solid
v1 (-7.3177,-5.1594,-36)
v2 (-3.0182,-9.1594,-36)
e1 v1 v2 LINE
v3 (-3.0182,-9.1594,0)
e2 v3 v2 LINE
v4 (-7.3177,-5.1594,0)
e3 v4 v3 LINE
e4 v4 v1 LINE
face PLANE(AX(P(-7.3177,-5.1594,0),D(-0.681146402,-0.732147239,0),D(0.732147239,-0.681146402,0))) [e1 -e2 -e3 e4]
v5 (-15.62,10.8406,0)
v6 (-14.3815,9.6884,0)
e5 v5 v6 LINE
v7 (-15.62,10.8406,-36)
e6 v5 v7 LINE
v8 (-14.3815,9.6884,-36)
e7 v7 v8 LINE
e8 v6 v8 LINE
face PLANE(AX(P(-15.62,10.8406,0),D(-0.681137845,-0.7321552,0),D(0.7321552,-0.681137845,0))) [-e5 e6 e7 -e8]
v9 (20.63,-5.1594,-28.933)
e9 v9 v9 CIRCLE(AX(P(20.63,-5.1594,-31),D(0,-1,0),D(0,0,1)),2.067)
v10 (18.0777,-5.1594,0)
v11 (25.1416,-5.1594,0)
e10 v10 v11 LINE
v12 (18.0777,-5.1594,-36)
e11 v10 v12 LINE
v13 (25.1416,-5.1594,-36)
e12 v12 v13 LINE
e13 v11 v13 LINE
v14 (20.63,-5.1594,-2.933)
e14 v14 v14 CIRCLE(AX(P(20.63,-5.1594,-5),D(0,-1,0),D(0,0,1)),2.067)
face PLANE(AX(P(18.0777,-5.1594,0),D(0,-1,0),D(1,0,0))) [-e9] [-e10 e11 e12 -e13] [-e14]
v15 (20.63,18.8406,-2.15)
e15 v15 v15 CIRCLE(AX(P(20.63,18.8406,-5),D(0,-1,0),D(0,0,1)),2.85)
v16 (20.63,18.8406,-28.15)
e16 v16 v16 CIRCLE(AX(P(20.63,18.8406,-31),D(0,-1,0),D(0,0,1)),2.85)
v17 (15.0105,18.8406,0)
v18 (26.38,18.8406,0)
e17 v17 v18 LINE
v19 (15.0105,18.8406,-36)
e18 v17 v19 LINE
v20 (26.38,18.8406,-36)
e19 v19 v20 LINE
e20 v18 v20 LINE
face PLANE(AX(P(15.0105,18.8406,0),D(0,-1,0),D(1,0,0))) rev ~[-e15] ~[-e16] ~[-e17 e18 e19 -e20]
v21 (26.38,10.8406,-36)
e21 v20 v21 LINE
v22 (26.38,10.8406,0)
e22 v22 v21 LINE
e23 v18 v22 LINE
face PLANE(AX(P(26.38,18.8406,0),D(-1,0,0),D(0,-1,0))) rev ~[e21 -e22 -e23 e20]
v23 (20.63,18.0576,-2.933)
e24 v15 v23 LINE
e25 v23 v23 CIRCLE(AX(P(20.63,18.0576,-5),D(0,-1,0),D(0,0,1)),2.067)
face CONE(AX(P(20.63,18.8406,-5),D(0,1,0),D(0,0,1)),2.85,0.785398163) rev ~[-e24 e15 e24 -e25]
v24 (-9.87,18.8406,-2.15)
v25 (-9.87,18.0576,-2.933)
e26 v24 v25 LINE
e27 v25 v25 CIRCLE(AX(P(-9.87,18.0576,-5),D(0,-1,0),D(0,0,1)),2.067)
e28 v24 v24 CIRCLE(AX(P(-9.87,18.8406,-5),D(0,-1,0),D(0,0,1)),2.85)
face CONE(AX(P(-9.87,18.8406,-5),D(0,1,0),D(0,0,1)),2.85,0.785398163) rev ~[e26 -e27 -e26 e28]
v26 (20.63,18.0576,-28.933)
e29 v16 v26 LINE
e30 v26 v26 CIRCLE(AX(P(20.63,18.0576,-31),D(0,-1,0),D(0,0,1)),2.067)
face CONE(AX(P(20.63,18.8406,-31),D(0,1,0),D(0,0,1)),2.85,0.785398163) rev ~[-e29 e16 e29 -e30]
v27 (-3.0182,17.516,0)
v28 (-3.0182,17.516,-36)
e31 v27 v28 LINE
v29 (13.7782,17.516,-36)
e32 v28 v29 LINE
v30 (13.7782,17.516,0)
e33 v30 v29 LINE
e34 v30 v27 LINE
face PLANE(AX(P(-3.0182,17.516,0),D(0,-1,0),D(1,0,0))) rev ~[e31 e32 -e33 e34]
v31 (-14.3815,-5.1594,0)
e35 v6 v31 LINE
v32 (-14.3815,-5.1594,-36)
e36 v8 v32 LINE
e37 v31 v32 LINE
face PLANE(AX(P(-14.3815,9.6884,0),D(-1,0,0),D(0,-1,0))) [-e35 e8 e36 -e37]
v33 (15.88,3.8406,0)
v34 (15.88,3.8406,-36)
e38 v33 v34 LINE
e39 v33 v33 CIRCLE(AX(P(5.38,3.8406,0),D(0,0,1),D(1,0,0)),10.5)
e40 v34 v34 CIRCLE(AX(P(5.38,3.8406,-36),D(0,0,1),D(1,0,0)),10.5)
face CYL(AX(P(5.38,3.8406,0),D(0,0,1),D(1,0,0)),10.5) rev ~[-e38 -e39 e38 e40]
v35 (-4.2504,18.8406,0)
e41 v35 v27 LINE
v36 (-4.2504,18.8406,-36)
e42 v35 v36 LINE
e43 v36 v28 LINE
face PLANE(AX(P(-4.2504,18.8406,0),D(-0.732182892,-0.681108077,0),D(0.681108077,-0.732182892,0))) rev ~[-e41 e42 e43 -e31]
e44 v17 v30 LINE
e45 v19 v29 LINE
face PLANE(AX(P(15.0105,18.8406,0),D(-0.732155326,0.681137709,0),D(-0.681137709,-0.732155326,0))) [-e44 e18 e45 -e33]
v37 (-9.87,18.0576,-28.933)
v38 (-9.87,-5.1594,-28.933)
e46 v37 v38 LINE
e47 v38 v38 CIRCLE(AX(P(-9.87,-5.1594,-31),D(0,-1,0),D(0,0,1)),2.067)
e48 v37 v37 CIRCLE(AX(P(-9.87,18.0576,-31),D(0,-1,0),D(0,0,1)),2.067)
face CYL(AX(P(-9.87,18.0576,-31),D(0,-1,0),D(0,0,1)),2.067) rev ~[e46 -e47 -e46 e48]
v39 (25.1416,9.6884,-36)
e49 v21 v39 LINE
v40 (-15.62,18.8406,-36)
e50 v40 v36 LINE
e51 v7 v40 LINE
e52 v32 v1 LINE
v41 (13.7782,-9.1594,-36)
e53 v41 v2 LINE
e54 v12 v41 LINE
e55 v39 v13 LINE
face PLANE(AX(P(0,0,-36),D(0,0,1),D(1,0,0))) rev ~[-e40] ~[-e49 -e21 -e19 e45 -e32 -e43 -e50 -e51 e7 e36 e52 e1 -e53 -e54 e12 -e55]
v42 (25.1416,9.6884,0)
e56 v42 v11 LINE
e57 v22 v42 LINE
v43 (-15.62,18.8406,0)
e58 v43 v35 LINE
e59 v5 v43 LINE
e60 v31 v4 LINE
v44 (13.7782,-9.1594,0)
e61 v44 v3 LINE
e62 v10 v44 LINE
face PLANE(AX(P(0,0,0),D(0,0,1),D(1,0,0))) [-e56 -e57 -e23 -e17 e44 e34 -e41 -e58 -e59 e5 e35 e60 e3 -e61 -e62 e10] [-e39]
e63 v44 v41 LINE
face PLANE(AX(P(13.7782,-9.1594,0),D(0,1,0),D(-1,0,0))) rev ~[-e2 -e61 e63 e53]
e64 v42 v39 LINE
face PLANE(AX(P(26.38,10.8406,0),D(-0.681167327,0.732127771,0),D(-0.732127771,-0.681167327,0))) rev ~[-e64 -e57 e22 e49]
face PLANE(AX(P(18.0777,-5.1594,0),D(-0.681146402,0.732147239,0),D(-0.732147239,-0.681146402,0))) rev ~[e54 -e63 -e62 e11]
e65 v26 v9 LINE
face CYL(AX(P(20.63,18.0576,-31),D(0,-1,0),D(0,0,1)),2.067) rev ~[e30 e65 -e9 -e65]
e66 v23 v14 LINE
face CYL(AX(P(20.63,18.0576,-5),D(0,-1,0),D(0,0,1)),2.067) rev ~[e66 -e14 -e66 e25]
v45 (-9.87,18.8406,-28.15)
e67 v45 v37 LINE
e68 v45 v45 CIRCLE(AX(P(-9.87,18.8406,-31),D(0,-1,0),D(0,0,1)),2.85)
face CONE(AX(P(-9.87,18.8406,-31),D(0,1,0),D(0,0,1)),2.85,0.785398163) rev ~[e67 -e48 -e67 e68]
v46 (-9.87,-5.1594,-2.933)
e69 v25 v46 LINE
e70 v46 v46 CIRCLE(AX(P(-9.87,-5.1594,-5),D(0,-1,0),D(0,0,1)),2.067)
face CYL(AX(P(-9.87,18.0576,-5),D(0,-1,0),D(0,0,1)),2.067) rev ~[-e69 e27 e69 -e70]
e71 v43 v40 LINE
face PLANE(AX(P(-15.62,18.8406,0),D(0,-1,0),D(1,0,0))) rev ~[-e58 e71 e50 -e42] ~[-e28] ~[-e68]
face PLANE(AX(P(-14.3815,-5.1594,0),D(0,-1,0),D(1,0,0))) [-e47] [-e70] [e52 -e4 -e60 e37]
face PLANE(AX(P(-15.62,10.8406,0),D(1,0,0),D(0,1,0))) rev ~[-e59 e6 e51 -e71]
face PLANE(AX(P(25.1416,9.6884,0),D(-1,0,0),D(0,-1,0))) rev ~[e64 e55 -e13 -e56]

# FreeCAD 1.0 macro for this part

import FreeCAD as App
import Part
import Sketcher
from FreeCAD import Vector
Q = App.Units.Quantity

doc = App.newDocument("Part")
body = doc.addObject("PartDesign::Body", "Body")

# Sketch on XY plane
sketch1 = body.newObject("Sketcher::SketchObject", "Sketch")
sketch1.AttachmentSupport = (doc.getObject("XY_Plane"), [""])
sketch1.MapMode = "FlatFace"
sketch1.addGeometry([
    Part.LineSegment(Vector(26.38, 10.8406, 0), Vector(26.38, 18.8406, 0)),  # 0
    Part.LineSegment(Vector(26.38, 18.8406, 0), Vector(15.0105, 18.8406, 0)),  # 1
    Part.LineSegment(Vector(15.0105, 18.8406, 0), Vector(13.7782, 17.516, 0)),  # 2
    Part.LineSegment(Vector(13.7782, 17.516, 0), Vector(-3.0182, 17.516, 0)),  # 3
    Part.LineSegment(Vector(-3.0182, 17.516, 0), Vector(-4.2504, 18.8406, 0)),  # 4
    Part.LineSegment(Vector(-4.2504, 18.8406, 0), Vector(-15.62, 18.8406, 0)),  # 5
    Part.LineSegment(Vector(-15.62, 18.8406, 0), Vector(-15.62, 10.8406, 0)),  # 6
    Part.LineSegment(Vector(-15.62, 10.8406, 0), Vector(-14.3815, 9.6884, 0)),  # 7
    Part.LineSegment(Vector(-14.3815, 9.6884, 0), Vector(-14.3815, -5.1594, 0)),  # 8
    Part.LineSegment(Vector(-14.3815, -5.1594, 0), Vector(-7.3177, -5.1594, 0)),  # 9
    Part.LineSegment(Vector(-7.3177, -5.1594, 0), Vector(-3.0182, -9.1594, 0)),  # 10
    Part.LineSegment(Vector(-3.0182, -9.1594, 0), Vector(13.7782, -9.1594, 0)),  # 11
    Part.LineSegment(Vector(13.7782, -9.1594, 0), Vector(18.0777, -5.1594, 0)),  # 12
    Part.LineSegment(Vector(18.0777, -5.1594, 0), Vector(25.1416, -5.1594, 0)),  # 13
    Part.LineSegment(Vector(25.1416, -5.1594, 0), Vector(25.1416, 9.6884, 0)),  # 14
    Part.LineSegment(Vector(25.1416, 9.6884, 0), Vector(26.38, 10.8406, 0)),  # 15
    Part.Circle(Vector(5.38, 3.8406, 0), Vector(0, 0, 1), 10.5),  # 16
], False)
sketch1.addConstraint([
    Sketcher.Constraint("Coincident", 0, 2, 1, 1),
    Sketcher.Constraint("Coincident", 1, 2, 2, 1),
    Sketcher.Constraint("Coincident", 2, 2, 3, 1),
    Sketcher.Constraint("Coincident", 3, 2, 4, 1),
    Sketcher.Constraint("Coincident", 4, 2, 5, 1),
    Sketcher.Constraint("Coincident", 5, 2, 6, 1),
    Sketcher.Constraint("Coincident", 6, 2, 7, 1),
    Sketcher.Constraint("Coincident", 7, 2, 8, 1),
    Sketcher.Constraint("Coincident", 8, 2, 9, 1),
    Sketcher.Constraint("Coincident", 9, 2, 10, 1),
    Sketcher.Constraint("Coincident", 10, 2, 11, 1),
    Sketcher.Constraint("Coincident", 11, 2, 12, 1),
    Sketcher.Constraint("Coincident", 12, 2, 13, 1),
    Sketcher.Constraint("Coincident", 13, 2, 14, 1),
    Sketcher.Constraint("Coincident", 14, 2, 15, 1),
    Sketcher.Constraint("Coincident", 15, 2, 0, 1),
    Sketcher.Constraint("Vertical", 0),
    Sketcher.Constraint("Horizontal", 1),
    Sketcher.Constraint("Horizontal", 3),
    Sketcher.Constraint("Horizontal", 5),
    Sketcher.Constraint("Vertical", 6),
    Sketcher.Constraint("Vertical", 8),
    Sketcher.Constraint("Horizontal", 9),
    Sketcher.Constraint("Horizontal", 11),
    Sketcher.Constraint("Horizontal", 13),
    Sketcher.Constraint("Vertical", 14),
    Sketcher.Constraint("Perpendicular", 2, 7),
    Sketcher.Constraint("Parallel", 7, 10),
    Sketcher.Constraint("Perpendicular", 4, 12),
    Sketcher.Constraint("Parallel", 12, 15),
    Sketcher.Constraint("Horizontal", 1, 2, 4, 2),
    Sketcher.Constraint("Horizontal", 9, 2, 12, 2),
    Sketcher.Constraint("Horizontal", 7, 2, 14, 2),
    Sketcher.Constraint("Horizontal", 6, 2, 15, 2),
    Sketcher.Constraint("Vertical", 3, 2, 10, 2),
    Sketcher.Constraint("Vertical", 2, 2, 11, 2),
    Sketcher.Constraint("Equal", 1, 5),
    Sketcher.Constraint("Equal", 9, 13),
    Sketcher.Constraint("Diameter", 16, Q("21 mm")),
    Sketcher.Constraint("DistanceY", 0, 1, 0, 2, Q("8 mm")),
    Sketcher.Constraint("DistanceX", 16, 3, 0, 2, Q("21 mm")),
    Sketcher.Constraint("DistanceX", 5, 2, 16, 3, Q("21 mm")),
    Sketcher.Constraint("DistanceY", 16, 3, 0, 2, Q("15 mm")),
    Sketcher.Constraint("DistanceY", 8, 2, 6, 2, Q("16 mm")),
    Sketcher.Constraint("DistanceY", 10, 2, 9, 2, Q("4 mm")),
    Sketcher.Constraint("Angle", 4, Q("132.9303 deg")),
    Sketcher.Constraint("DistanceX", 13, 1, 13, 2, Q("7.064 mm")),
    Sketcher.Constraint("DistanceX", -1, 1, 16, 3, Q("5.38 mm")),
    Sketcher.Constraint("Distance", 4, Q("1.809 mm")),
    Sketcher.Constraint("DistanceX", 1, 2, 1, 1, Q("11.3695 mm")),
    Sketcher.Constraint("DistanceY", -1, 1, 2, 2, Q("17.516 mm")),
])
pad1 = body.newObject("PartDesign::Pad", "Pad")
pad1.Profile = sketch1
pad1.Length = 36
pad1.Reversed = True

# Sketch on XZ plane
sketch2 = body.newObject("Sketcher::SketchObject", "Sketch001")
sketch2.AttachmentSupport = (doc.getObject("XZ_Plane"), [""])
sketch2.MapMode = "FlatFace"
sketch2.AttachmentOffset = App.Placement(Vector(0, 0, -18.8406), App.Rotation())
sketch2.addGeometry([
    Part.Circle(Vector(20.63, -31, 0), Vector(0, 0, 1), 2.067),
    Part.Circle(Vector(20.63, -5, 0), Vector(0, 0, 1), 2.067),
    Part.Circle(Vector(-9.87, -5, 0), Vector(0, 0, 1), 2.067),
    Part.Circle(Vector(-9.87, -31, 0), Vector(0, 0, 1), 2.067),
], False)
sketch2.addConstraint([
    Sketcher.Constraint("Equal", 0, 1),
    Sketcher.Constraint("Equal", 1, 2),
    Sketcher.Constraint("Equal", 2, 3),
    Sketcher.Constraint("Horizontal", 1, 3, 2, 3),
    Sketcher.Constraint("Horizontal", 0, 3, 3, 3),
    Sketcher.Constraint("Vertical", 0, 3, 1, 3),
    Sketcher.Constraint("Vertical", 2, 3, 3, 3),
    Sketcher.Constraint("Diameter", 0, Q("4.134 mm")),
    Sketcher.Constraint("DistanceY", 0, 3, -1, 1, Q("31 mm")),
    Sketcher.Constraint("DistanceY", 1, 3, -1, 1, Q("5 mm")),
    Sketcher.Constraint("DistanceX", 2, 3, 1, 3, Q("30.5 mm")),
    Sketcher.Constraint("DistanceX", -1, 1, 0, 3, Q("20.63 mm")),
])
doc.recompute()
hole = body.newObject("PartDesign::Hole", "Hole")
hole.Profile = sketch2
hole.ThreadType = "None"
hole.Diameter = 4.134
hole.DepthType = "ThroughAll"
hole.HoleCutType = "Countersink"
hole.HoleCutDiameter = 5.7
hole.HoleCutCountersinkAngle = 90
hole.Reversed = True

doc.recompute()
